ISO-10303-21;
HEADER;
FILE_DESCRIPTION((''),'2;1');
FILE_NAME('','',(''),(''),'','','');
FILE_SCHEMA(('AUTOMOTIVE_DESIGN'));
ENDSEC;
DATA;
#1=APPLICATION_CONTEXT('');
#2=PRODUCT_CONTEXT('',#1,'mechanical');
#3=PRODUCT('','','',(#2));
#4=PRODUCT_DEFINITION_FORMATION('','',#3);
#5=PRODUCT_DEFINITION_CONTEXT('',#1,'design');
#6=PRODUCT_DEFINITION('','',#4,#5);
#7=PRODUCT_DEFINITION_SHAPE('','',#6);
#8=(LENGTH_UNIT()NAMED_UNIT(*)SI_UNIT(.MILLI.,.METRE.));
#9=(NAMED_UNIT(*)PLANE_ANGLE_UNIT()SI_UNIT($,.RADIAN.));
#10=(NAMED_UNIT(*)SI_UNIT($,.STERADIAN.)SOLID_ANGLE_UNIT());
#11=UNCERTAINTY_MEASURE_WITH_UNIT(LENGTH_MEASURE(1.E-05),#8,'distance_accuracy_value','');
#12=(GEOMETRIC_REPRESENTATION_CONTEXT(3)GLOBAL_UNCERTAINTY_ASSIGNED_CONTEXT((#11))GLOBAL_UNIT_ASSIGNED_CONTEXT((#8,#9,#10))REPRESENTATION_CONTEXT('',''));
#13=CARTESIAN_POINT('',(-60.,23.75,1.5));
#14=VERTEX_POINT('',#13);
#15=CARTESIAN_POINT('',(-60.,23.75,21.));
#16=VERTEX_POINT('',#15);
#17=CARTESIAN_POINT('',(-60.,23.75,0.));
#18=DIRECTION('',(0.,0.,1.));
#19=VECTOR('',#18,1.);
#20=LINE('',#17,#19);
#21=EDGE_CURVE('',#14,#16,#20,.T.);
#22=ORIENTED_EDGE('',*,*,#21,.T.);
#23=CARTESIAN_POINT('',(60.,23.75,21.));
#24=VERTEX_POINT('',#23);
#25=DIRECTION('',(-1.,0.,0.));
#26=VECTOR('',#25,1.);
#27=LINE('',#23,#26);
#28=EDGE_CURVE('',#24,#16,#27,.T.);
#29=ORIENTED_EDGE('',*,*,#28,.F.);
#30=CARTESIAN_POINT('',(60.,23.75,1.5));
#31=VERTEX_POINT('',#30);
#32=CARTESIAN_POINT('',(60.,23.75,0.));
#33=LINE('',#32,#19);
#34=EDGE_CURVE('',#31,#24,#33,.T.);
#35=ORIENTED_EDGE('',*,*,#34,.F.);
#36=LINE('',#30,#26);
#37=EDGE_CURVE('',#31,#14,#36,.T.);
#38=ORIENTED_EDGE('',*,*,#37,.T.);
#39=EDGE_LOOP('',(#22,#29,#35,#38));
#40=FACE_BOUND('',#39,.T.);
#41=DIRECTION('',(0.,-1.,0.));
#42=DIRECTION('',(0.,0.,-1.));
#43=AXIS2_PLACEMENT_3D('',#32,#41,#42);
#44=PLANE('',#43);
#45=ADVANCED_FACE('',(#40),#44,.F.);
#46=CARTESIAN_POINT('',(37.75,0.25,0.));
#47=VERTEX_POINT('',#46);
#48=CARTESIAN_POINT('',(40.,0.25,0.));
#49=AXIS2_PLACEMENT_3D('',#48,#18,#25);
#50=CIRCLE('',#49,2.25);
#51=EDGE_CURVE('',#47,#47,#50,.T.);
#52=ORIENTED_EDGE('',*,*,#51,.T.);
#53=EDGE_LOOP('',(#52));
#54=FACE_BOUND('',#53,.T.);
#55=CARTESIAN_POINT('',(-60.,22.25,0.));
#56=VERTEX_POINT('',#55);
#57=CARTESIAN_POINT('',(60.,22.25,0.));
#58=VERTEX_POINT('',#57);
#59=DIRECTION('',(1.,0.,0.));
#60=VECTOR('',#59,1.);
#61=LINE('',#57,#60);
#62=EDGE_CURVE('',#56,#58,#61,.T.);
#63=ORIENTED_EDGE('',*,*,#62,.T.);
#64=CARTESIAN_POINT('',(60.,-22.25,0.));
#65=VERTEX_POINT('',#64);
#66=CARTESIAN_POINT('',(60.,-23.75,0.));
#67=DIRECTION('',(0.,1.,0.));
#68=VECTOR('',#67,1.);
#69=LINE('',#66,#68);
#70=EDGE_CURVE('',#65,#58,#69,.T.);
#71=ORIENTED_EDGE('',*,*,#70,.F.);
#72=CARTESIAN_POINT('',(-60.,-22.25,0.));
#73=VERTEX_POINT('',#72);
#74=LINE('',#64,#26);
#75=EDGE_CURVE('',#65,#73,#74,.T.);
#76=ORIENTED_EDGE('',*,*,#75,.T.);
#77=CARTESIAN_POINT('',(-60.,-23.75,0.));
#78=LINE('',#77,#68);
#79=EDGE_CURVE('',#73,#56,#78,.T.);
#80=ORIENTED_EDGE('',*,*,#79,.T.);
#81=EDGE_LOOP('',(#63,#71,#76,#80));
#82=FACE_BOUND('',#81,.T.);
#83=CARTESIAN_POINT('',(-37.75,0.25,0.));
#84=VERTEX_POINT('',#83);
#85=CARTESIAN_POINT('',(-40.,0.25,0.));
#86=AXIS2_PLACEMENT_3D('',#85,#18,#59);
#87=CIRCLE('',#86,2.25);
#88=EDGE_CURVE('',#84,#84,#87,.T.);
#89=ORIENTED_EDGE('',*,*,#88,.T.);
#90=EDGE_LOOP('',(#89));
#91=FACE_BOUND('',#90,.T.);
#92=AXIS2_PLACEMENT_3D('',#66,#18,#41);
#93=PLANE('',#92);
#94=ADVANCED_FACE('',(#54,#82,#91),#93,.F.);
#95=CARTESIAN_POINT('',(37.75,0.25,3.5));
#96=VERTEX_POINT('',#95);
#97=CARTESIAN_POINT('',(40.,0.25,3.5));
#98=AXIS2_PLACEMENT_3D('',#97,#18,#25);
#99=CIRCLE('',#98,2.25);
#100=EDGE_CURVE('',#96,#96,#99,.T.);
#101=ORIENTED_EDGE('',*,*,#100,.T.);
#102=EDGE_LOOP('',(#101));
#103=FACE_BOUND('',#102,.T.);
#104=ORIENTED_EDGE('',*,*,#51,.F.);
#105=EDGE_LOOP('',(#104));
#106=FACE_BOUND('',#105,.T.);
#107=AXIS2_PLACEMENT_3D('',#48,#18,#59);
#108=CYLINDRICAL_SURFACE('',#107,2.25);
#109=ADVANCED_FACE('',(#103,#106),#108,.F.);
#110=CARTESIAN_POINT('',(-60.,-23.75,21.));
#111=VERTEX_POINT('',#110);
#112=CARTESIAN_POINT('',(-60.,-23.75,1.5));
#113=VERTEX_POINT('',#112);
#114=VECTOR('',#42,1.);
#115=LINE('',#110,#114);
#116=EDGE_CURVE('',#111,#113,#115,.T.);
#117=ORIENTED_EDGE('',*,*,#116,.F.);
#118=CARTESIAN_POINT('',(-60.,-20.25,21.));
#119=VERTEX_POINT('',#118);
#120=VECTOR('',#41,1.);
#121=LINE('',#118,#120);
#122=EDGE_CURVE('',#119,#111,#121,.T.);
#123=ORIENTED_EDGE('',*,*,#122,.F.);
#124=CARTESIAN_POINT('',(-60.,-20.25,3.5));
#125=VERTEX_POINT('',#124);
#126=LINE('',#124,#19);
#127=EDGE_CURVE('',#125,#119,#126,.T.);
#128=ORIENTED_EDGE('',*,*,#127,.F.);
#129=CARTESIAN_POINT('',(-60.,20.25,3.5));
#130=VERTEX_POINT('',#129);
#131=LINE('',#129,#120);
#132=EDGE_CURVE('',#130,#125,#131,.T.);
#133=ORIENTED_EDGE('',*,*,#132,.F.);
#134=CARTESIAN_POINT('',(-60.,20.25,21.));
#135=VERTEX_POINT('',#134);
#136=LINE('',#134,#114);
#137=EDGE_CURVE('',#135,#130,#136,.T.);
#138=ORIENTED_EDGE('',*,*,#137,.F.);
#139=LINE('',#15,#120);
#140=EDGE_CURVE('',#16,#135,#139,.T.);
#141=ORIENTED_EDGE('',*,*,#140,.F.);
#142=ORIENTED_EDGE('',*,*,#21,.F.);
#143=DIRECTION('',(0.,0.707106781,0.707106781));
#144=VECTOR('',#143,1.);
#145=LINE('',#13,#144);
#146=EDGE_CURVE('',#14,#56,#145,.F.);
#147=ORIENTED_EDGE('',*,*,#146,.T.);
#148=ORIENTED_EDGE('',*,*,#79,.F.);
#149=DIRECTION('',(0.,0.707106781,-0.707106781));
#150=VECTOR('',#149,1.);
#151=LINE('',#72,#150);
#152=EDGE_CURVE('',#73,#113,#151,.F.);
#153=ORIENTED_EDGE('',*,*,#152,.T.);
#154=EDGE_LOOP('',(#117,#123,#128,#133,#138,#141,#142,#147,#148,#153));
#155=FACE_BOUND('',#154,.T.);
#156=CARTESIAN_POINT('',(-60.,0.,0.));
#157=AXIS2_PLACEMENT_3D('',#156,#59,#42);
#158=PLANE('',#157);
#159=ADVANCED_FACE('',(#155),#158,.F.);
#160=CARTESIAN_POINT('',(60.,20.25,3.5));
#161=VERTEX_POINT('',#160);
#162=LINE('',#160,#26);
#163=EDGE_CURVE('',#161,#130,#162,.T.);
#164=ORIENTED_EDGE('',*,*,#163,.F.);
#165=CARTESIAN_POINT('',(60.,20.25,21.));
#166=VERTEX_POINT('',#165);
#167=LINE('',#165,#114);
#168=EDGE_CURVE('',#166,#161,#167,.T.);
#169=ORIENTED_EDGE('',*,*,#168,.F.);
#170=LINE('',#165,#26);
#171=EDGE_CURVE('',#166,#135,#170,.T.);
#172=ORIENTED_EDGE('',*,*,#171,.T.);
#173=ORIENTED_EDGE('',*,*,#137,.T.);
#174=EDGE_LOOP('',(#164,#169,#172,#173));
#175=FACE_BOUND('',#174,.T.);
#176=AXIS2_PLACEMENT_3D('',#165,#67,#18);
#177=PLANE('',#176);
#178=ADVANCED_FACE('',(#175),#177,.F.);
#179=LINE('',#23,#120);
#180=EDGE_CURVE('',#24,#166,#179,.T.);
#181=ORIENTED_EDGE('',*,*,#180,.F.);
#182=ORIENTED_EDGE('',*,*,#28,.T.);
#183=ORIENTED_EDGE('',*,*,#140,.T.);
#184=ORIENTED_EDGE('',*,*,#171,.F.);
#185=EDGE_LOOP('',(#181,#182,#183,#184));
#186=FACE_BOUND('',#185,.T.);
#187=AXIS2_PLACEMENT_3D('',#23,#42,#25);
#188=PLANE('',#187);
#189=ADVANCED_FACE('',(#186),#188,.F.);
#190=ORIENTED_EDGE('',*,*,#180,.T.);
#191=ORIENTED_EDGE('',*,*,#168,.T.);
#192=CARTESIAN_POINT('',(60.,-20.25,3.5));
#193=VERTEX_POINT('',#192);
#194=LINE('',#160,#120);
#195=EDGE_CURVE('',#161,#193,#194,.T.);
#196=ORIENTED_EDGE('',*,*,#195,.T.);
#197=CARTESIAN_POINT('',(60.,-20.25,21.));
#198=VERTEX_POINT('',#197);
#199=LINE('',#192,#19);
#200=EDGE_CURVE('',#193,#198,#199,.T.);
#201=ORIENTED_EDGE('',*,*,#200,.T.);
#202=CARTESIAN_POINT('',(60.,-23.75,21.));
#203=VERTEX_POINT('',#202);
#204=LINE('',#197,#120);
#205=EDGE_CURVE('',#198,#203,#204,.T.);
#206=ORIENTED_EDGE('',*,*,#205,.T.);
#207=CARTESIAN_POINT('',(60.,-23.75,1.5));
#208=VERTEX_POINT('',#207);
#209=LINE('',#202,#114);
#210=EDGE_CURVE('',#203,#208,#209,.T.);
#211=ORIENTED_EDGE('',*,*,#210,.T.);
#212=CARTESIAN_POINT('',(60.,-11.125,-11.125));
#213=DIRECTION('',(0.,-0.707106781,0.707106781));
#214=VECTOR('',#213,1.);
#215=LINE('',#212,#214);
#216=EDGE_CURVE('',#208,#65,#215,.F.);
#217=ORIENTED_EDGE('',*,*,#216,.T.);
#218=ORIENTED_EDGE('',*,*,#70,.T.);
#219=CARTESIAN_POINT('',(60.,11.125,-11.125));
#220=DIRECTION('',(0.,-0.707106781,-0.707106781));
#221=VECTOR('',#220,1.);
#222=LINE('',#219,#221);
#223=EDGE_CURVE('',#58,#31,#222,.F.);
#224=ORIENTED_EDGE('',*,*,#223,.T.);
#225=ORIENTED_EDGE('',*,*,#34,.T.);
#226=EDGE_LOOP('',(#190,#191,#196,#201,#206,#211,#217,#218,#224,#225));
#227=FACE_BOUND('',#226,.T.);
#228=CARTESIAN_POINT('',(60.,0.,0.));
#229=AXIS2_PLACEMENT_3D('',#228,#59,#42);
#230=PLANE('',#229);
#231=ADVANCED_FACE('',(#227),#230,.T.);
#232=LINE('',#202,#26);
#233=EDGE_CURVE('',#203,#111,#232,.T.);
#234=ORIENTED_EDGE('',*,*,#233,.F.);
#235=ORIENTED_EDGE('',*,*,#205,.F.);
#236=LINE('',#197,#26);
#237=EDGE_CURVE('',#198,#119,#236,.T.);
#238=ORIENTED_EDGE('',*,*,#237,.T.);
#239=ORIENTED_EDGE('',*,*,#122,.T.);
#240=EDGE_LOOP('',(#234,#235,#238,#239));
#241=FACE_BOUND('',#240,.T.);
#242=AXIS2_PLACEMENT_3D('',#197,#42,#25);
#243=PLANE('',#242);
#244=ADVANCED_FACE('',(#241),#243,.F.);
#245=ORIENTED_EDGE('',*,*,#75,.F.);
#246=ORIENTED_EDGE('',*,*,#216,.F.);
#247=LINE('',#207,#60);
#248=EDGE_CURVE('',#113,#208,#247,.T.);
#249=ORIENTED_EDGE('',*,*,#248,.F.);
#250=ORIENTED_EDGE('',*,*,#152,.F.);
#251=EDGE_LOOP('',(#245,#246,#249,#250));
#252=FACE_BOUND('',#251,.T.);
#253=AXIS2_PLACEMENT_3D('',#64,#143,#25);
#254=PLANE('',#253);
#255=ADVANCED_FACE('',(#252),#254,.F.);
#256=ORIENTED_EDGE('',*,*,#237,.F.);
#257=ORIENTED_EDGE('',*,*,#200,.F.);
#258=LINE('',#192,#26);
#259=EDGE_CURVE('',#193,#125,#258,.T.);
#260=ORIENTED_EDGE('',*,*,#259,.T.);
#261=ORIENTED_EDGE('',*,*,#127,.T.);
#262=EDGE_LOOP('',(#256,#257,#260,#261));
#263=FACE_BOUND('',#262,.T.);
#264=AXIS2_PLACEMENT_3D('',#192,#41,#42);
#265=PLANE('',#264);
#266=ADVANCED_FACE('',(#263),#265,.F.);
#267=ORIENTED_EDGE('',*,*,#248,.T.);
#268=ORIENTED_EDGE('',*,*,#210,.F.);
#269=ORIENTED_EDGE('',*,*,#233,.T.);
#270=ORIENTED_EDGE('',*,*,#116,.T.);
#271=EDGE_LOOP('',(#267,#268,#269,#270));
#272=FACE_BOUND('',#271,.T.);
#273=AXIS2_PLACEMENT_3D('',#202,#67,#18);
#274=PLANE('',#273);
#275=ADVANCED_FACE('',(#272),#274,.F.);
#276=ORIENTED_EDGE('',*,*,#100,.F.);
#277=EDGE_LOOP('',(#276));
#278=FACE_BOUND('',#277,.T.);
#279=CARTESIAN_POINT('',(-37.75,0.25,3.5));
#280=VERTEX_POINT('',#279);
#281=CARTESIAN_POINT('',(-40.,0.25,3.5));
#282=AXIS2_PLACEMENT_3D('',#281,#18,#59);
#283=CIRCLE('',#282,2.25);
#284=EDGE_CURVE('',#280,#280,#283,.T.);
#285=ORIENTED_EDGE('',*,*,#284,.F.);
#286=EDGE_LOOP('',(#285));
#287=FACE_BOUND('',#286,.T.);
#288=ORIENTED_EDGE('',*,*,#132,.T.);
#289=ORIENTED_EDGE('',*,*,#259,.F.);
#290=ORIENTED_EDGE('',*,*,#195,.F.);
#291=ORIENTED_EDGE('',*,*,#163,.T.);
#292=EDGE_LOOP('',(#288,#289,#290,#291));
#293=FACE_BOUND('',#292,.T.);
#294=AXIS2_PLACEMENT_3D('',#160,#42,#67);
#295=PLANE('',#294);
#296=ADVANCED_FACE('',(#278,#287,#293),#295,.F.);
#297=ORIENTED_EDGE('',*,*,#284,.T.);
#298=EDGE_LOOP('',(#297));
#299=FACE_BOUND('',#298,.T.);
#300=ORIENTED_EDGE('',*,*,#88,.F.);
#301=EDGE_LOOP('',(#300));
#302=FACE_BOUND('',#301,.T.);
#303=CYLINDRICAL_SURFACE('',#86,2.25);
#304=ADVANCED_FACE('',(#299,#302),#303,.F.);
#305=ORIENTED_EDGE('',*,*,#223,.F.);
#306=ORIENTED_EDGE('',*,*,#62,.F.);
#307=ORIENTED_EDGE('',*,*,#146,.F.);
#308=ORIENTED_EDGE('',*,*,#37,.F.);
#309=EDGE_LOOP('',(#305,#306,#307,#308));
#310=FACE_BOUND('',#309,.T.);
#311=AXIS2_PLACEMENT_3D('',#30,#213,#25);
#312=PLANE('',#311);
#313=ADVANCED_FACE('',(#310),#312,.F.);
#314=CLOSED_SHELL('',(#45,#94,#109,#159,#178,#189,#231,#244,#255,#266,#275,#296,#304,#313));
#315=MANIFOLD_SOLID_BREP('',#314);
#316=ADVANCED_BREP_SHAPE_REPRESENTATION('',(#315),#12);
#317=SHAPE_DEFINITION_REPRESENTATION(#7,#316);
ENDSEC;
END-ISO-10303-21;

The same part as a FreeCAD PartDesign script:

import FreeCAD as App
import Part
import Sketcher


def edges_at(feature, points):
    """Names of the edges that pass closest to the given points."""
    edges = feature.Shape.Edges
    near = lambda p: min(range(len(edges)), key=lambda i: edges[i].distToShape(Part.Vertex(*p))[0])
    return sorted({f"Edge{near(p) + 1}" for p in points})


def add_polygon(sketch, points):
    """Adds a closed chain of lines whose ends are joined by coincident constraints."""
    first, n = sketch.GeometryCount, len(points)
    for a, b in zip(points, points[1:] + points[:1]):
        sketch.addGeometry(Part.LineSegment(App.Vector(*a, 0), App.Vector(*b, 0)), False)
    for i in range(n):
        sketch.addConstraint(Sketcher.Constraint("Coincident", first + i, 2, first + (i + 1) % n, 1))

doc = App.newDocument("Part")
params = doc.addObject("Spreadsheet::Sheet", "Params")
for row, (alias, value) in enumerate([
    ("sketch1_height", "21 mm"),
    ("sketch1_width", "47.5 mm"),
    ("sketch1_width2", "3.5 mm"),
    ("sketch1_height2", "17.5 mm"),
    ("pad1_length", "120 mm"),
    ("chamfer_size", "1.5 mm"),
    ("sketch2_diameter", "4.5 mm"),
], start=1):
    params.set(f"A{row}", alias)
    params.set(f"B{row}", "=" + value)
    params.setAlias(f"B{row}", alias)

body = doc.addObject("PartDesign::Body", "Body")

# Sketch on YZ plane
sketch1 = body.newObject("Sketcher::SketchObject", "Sketch")
sketch1.AttachmentSupport = (doc.getObject("YZ_Plane"), [""])
sketch1.MapMode = "FlatFace"
add_polygon(sketch1, [(-23.8, 0), (23.8, 0), (23.8, 21), (20.2, 21), (20.2, 3.5), (-20.2, 3.5), (-20.2, 21), (-23.8, 21)])  # lines 0-7
sketch1.addConstraint([
    Sketcher.Constraint("Horizontal", 0),
    Sketcher.Constraint("Vertical", 1),
    Sketcher.Constraint("Horizontal", 2),
    Sketcher.Constraint("Vertical", 3),
    Sketcher.Constraint("Horizontal", 4),
    Sketcher.Constraint("Vertical", 5),
    Sketcher.Constraint("Horizontal", 6),
    Sketcher.Constraint("Vertical", 7),
    Sketcher.Constraint("Symmetric", 0, 2, 7, 2, -1, 1),
    Sketcher.Constraint("Symmetric", 2, 2, 5, 2, -2),
    Sketcher.Constraint("DistanceY", 1, 1, 1, 2, 21.0),
    Sketcher.Constraint("DistanceX", 0, 1, 0, 2, 47.5),
    Sketcher.Constraint("DistanceX", 2, 2, 2, 1, 3.5),
    Sketcher.Constraint("DistanceY", 3, 2, 3, 1, 17.5),
])
sketch1.setExpression("Constraints[18]", "Params.sketch1_height")
sketch1.setExpression("Constraints[19]", "Params.sketch1_width")
sketch1.setExpression("Constraints[20]", "Params.sketch1_width2")
sketch1.setExpression("Constraints[21]", "Params.sketch1_height2")
pad1 = body.newObject("PartDesign::Pad", "Pad")
pad1.Profile = sketch1
pad1.setExpression("Length", "Params.pad1_length")
pad1.Midplane = True
doc.recompute()

chamfer = body.newObject("PartDesign::Chamfer", "Chamfer")
chamfer.Base = (pad1, edges_at(pad1, [(0, 23.75, 0), (0, -23.75, 0)]))
chamfer.setExpression("Size", "Params.chamfer_size")

# Sketch on XY plane
sketch2 = body.newObject("Sketcher::SketchObject", "Sketch001")
sketch2.AttachmentSupport = (doc.getObject("XY_Plane"), [""])
sketch2.MapMode = "FlatFace"
sketch2.AttachmentOffset = App.Placement(App.Vector(0, 0, 3.5), App.Rotation())
sketch2.addGeometry([
    Part.Circle(App.Vector(-40, 0.2, 0), App.Vector(0, 0, 1), 2.2),
    Part.Circle(App.Vector(40, 0.2, 0), App.Vector(0, 0, 1), 2.2),
], False)
sketch2.addConstraint([
    Sketcher.Constraint("Equal", 0, 1),
    Sketcher.Constraint("Symmetric", 0, 3, 1, 3, -2),
    Sketcher.Constraint("Diameter", 0, 4.5),
    Sketcher.Constraint("DistanceX", 0, 3, -1, 1, 40.0),
    Sketcher.Constraint("DistanceY", -1, 1, 0, 3, 0.25),
])
sketch2.setExpression("Constraints[2]", "Params.sketch2_diameter")
pocket1 = body.newObject("PartDesign::Pocket", "Pocket")
pocket1.Profile = sketch2
pocket1.Type = "ThroughAll"

doc.recompute()
